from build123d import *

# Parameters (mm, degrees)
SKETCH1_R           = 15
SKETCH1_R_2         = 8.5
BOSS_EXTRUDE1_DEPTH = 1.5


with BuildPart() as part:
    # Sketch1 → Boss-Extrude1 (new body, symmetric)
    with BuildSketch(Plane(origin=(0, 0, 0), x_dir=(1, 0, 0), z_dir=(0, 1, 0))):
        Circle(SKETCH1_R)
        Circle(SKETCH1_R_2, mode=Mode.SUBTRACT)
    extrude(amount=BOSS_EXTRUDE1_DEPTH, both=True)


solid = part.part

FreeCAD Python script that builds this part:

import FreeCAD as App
import Part
import Sketcher

V = App.Vector

doc = App.newDocument("Part")
body = doc.addObject("PartDesign::Body", "Body")

# Sketch on XZ plane
sketch1 = doc.addObject("Sketcher::SketchObject", "Sketch")
body.addObject(sketch1)
sketch1.AttachmentSupport = (doc.XZ_Plane, [""])
sketch1.MapMode = "FlatFace"
sketch1.addGeometry(Part.Circle(V(0, 0, 0), V(0, 0, 1), 15), False)
sketch1.addGeometry(Part.Circle(V(0, 0, 0), V(0, 0, 1), 8.5), False)
sketch1.addConstraint(Sketcher.Constraint("Coincident", 0, 3, -1, 1))
sketch1.addConstraint(Sketcher.Constraint("Coincident", 1, 3, -1, 1))
sketch1.addConstraint(Sketcher.Constraint("Diameter", 0, 30.0))
sketch1.addConstraint(Sketcher.Constraint("Diameter", 1, 17.0))
pad1 = doc.addObject("PartDesign::Pad", "Pad")
body.addObject(pad1)
pad1.Profile = sketch1
pad1.Length = 3
pad1.Midplane = True

doc.recompute()
